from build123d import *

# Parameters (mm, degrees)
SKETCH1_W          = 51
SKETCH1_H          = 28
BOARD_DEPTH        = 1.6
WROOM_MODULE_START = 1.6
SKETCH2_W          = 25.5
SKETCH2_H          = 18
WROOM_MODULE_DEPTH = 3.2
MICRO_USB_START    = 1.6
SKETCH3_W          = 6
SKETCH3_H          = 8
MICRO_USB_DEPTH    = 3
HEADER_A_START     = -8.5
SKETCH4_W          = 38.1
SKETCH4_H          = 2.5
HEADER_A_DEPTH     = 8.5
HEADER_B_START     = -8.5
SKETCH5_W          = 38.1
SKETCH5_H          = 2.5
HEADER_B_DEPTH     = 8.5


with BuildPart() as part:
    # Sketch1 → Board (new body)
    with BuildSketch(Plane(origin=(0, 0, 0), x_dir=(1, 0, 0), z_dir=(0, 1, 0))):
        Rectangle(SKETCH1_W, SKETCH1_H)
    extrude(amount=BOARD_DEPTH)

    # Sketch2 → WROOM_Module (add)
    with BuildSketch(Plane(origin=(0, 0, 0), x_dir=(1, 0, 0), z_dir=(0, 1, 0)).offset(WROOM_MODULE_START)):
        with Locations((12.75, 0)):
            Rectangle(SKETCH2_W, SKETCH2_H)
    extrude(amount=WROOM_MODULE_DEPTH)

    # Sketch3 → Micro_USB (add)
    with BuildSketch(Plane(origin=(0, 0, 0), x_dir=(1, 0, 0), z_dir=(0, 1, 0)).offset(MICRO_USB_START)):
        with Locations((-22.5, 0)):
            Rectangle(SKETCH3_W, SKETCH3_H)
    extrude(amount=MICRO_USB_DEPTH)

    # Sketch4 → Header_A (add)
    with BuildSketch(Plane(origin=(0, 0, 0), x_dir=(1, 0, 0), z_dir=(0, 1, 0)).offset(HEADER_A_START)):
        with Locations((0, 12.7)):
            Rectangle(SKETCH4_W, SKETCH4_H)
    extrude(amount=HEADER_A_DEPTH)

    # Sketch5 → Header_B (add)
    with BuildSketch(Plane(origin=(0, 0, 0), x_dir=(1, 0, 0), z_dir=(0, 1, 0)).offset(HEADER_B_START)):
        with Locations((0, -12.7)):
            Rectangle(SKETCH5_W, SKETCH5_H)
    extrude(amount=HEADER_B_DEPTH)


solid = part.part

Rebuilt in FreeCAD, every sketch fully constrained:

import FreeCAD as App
import Part
import Sketcher

doc = App.newDocument("Part")
body = doc.addObject("PartDesign::Body", "Body")

# Sketch on XZ plane
sketch1 = body.newObject("Sketcher::SketchObject", "Sketch")
sketch1.AttachmentSupport = (doc.getObject("XZ_Plane"), [""])
sketch1.MapMode = "FlatFace"
sketch1.addGeometry([
    Part.LineSegment(App.Vector(-26, -14, 0), App.Vector(-26, 14, 0)),
    Part.LineSegment(App.Vector(-26, 14, 0), App.Vector(26, 14, 0)),
    Part.LineSegment(App.Vector(26, 14, 0), App.Vector(26, -14, 0)),
    Part.LineSegment(App.Vector(26, -14, 0), App.Vector(-26, -14, 0)),
], False)
sketch1.addConstraint([
    Sketcher.Constraint("Coincident", 0, 2, 1, 1),
    Sketcher.Constraint("Coincident", 1, 2, 2, 1),
    Sketcher.Constraint("Coincident", 2, 2, 3, 1),
    Sketcher.Constraint("Coincident", 3, 2, 0, 1),
    Sketcher.Constraint("Vertical", 0),
    Sketcher.Constraint("Horizontal", 1),
    Sketcher.Constraint("Vertical", 2),
    Sketcher.Constraint("Horizontal", 3),
    Sketcher.Constraint("Symmetric", 0, 2, 2, 2, -1, 1),
    Sketcher.Constraint("DistanceX", 1, 1, 1, 2, 51.0),
    Sketcher.Constraint("DistanceY", 0, 1, 0, 2, 28.0),
])
pad1 = body.newObject("PartDesign::Pad", "Pad")
pad1.Profile = sketch1
pad1.Length = 1.6
pad1.Reversed = True

# Sketch on XZ plane
sketch2 = body.newObject("Sketcher::SketchObject", "Sketch001")
sketch2.AttachmentSupport = (doc.getObject("XZ_Plane"), [""])
sketch2.MapMode = "FlatFace"
sketch2.AttachmentOffset = App.Placement(App.Vector(0, 0, -1.6), App.Rotation())
sketch2.addGeometry([
    Part.LineSegment(App.Vector(0, -9, 0), App.Vector(0, 9, 0)),
    Part.LineSegment(App.Vector(0, 9, 0), App.Vector(26, 9, 0)),
    Part.LineSegment(App.Vector(26, 9, 0), App.Vector(26, -9, 0)),
    Part.LineSegment(App.Vector(26, -9, 0), App.Vector(0, -9, 0)),
], False)
sketch2.addConstraint([
    Sketcher.Constraint("Coincident", 0, 2, 1, 1),
    Sketcher.Constraint("Coincident", 1, 2, 2, 1),
    Sketcher.Constraint("Coincident", 2, 2, 3, 1),
    Sketcher.Constraint("Coincident", 3, 2, 0, 1),
    Sketcher.Constraint("Vertical", 0),
    Sketcher.Constraint("Horizontal", 1),
    Sketcher.Constraint("Vertical", 2),
    Sketcher.Constraint("Horizontal", 3),
    Sketcher.Constraint("Symmetric", 0, 2, 3, 2, -1, 1),
    Sketcher.Constraint("DistanceY", 0, 1, 0, 2, 18.0),
    Sketcher.Constraint("DistanceX", 1, 1, 1, 2, 25.5),
])
pad2 = body.newObject("PartDesign::Pad", "Pad001")
pad2.Profile = sketch2
pad2.Length = 3.2
pad2.Reversed = True

# Sketch on XZ plane
sketch3 = body.newObject("Sketcher::SketchObject", "Sketch002")
sketch3.AttachmentSupport = (doc.getObject("XZ_Plane"), [""])
sketch3.MapMode = "FlatFace"
sketch3.AttachmentOffset = App.Placement(App.Vector(0, 0, -1.6), App.Rotation())
sketch3.addGeometry([
    Part.LineSegment(App.Vector(-26, -4, 0), App.Vector(-26, 4, 0)),
    Part.LineSegment(App.Vector(-26, 4, 0), App.Vector(-20, 4, 0)),
    Part.LineSegment(App.Vector(-20, 4, 0), App.Vector(-20, -4, 0)),
    Part.LineSegment(App.Vector(-20, -4, 0), App.Vector(-26, -4, 0)),
], False)
sketch3.addConstraint([
    Sketcher.Constraint("Coincident", 0, 2, 1, 1),
    Sketcher.Constraint("Coincident", 1, 2, 2, 1),
    Sketcher.Constraint("Coincident", 2, 2, 3, 1),
    Sketcher.Constraint("Coincident", 3, 2, 0, 1),
    Sketcher.Constraint("Vertical", 0),
    Sketcher.Constraint("Horizontal", 1),
    Sketcher.Constraint("Vertical", 2),
    Sketcher.Constraint("Horizontal", 3),
    Sketcher.Constraint("DistanceX", 1, 1, 1, 2, 6.0),
    Sketcher.Constraint("DistanceY", 0, 1, 0, 2, 8.0),
    Sketcher.Constraint("DistanceY", -1, 1, 0, 2, 4.0),
    Sketcher.Constraint("DistanceX", 0, 2, -1, 1, 25.5),
])
pad3 = body.newObject("PartDesign::Pad", "Pad002")
pad3.Profile = sketch3
pad3.Length = 3
pad3.Reversed = True

# Sketch on XZ plane
sketch4 = body.newObject("Sketcher::SketchObject", "Sketch003")
sketch4.AttachmentSupport = (doc.getObject("XZ_Plane"), [""])
sketch4.MapMode = "FlatFace"
sketch4.AttachmentOffset = App.Placement(App.Vector(0, 0, 8.5), App.Rotation())
sketch4.addGeometry([
    Part.LineSegment(App.Vector(-19.1, -13.9, 0), App.Vector(-19.1, -11.4, 0)),
    Part.LineSegment(App.Vector(-19.1, -11.4, 0), App.Vector(19.1, -11.4, 0)),
    Part.LineSegment(App.Vector(19.1, -11.4, 0), App.Vector(19.1, -13.9, 0)),
    Part.LineSegment(App.Vector(19.1, -13.9, 0), App.Vector(-19.1, -13.9, 0)),
], False)
sketch4.addConstraint([
    Sketcher.Constraint("Coincident", 0, 2, 1, 1),
    Sketcher.Constraint("Coincident", 1, 2, 2, 1),
    Sketcher.Constraint("Coincident", 2, 2, 3, 1),
    Sketcher.Constraint("Coincident", 3, 2, 0, 1),
    Sketcher.Constraint("Vertical", 0),
    Sketcher.Constraint("Horizontal", 1),
    Sketcher.Constraint("Vertical", 2),
    Sketcher.Constraint("Horizontal", 3),
    Sketcher.Constraint("DistanceX", 1, 1, 1, 2, 38.1),
    Sketcher.Constraint("DistanceY", 0, 1, 0, 2, 2.5),
    Sketcher.Constraint("DistanceX", 0, 2, -1, 1, 19.05),
    Sketcher.Constraint("DistanceY", 0, 2, -1, 1, 11.45),
])
pad4 = body.newObject("PartDesign::Pad", "Pad003")
pad4.Profile = sketch4
pad4.Length = 8.5
pad4.Reversed = True

# Sketch on XZ plane
sketch5 = body.newObject("Sketcher::SketchObject", "Sketch004")
sketch5.AttachmentSupport = (doc.getObject("XZ_Plane"), [""])
sketch5.MapMode = "FlatFace"
sketch5.AttachmentOffset = App.Placement(App.Vector(0, 0, 8.5), App.Rotation())
sketch5.addGeometry([
    Part.LineSegment(App.Vector(-19.1, 11.4, 0), App.Vector(-19.1, 13.9, 0)),
    Part.LineSegment(App.Vector(-19.1, 13.9, 0), App.Vector(19.1, 13.9, 0)),
    Part.LineSegment(App.Vector(19.1, 13.9, 0), App.Vector(19.1, 11.4, 0)),
    Part.LineSegment(App.Vector(19.1, 11.4, 0), App.Vector(-19.1, 11.4, 0)),
], False)
sketch5.addConstraint([
    Sketcher.Constraint("Coincident", 0, 2, 1, 1),
    Sketcher.Constraint("Coincident", 1, 2, 2, 1),
    Sketcher.Constraint("Coincident", 2, 2, 3, 1),
    Sketcher.Constraint("Coincident", 3, 2, 0, 1),
    Sketcher.Constraint("Vertical", 0),
    Sketcher.Constraint("Horizontal", 1),
    Sketcher.Constraint("Vertical", 2),
    Sketcher.Constraint("Horizontal", 3),
    Sketcher.Constraint("DistanceX", 1, 1, 1, 2, 38.1),
    Sketcher.Constraint("DistanceY", 0, 1, 0, 2, 2.5),
    Sketcher.Constraint("DistanceX", 0, 2, -1, 1, 19.05),
    Sketcher.Constraint("DistanceY", -1, 1, 0, 2, 13.95),
])
pad5 = body.newObject("PartDesign::Pad", "Pad004")
pad5.Profile = sketch5
pad5.Length = 8.5
pad5.Reversed = True

doc.recompute()
